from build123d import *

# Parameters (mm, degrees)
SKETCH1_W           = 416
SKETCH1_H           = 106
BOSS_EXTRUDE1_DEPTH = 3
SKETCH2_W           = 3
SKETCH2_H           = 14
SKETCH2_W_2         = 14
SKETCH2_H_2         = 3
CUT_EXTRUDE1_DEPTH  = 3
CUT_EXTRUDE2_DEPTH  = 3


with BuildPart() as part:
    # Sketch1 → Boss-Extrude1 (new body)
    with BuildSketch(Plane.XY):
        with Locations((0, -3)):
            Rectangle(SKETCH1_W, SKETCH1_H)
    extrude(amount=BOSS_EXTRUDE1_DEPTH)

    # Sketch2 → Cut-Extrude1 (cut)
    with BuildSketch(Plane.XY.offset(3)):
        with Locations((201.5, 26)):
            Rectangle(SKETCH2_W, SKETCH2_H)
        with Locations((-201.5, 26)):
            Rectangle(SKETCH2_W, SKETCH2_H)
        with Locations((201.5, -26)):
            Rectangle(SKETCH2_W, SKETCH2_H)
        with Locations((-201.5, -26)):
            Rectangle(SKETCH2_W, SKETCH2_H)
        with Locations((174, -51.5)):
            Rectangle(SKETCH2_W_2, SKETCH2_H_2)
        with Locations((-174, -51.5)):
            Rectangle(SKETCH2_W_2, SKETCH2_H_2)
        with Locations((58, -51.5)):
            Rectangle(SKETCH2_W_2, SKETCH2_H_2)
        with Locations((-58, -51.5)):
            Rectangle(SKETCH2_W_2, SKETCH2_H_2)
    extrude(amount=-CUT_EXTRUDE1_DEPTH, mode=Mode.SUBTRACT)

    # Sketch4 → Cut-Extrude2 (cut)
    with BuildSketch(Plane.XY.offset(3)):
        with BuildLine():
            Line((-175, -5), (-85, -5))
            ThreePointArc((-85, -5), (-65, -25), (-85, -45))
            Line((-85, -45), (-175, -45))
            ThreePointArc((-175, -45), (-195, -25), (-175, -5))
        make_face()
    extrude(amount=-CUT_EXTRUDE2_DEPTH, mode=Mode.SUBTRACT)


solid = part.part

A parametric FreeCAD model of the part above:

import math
import FreeCAD as App
import Part
import Sketcher
from FreeCAD import Vector

doc = App.newDocument("Part")
params = doc.addObject("Spreadsheet::Sheet", "Params")
for row, (alias, value) in enumerate([
    ("sketch1_width", "416 mm"),
    ("sketch1_height", "106 mm"),
    ("pad1_length", "3 mm"),
    ("sketch2_width", "3 mm"),
    ("sketch2_width2", "14 mm"),
    ("pocket1_length", "3 mm"),
    ("sketch3_radius", "20 mm"),
    ("sketch3_width", "90 mm"),
    ("pocket2_length", "3 mm"),
], start=1):
    params.set(f"A{row}", alias)
    params.set(f"B{row}", "=" + value)
    params.setAlias(f"B{row}", alias)

body = doc.addObject("PartDesign::Body", "Body")

# Sketch on XY plane
sketch1 = body.newObject("Sketcher::SketchObject", "Sketch")
sketch1.AttachmentSupport = (doc.getObject("XY_Plane"), [""])
sketch1.MapMode = "FlatFace"
sketch1.addGeometry([
    Part.LineSegment(Vector(-208, 50, 0), Vector(-208, -56, 0)),
    Part.LineSegment(Vector(-208, -56, 0), Vector(208, -56, 0)),
    Part.LineSegment(Vector(208, -56, 0), Vector(208, 50, 0)),
    Part.LineSegment(Vector(208, 50, 0), Vector(-208, 50, 0)),
], False)
sketch1.addConstraint([
    Sketcher.Constraint("Coincident", 0, 2, 1, 1),
    Sketcher.Constraint("Coincident", 1, 2, 2, 1),
    Sketcher.Constraint("Coincident", 2, 2, 3, 1),
    Sketcher.Constraint("Coincident", 3, 2, 0, 1),
    Sketcher.Constraint("Vertical", 0),
    Sketcher.Constraint("Horizontal", 1),
    Sketcher.Constraint("Vertical", 2),
    Sketcher.Constraint("Horizontal", 3),
    Sketcher.Constraint("DistanceX", 1, 1, 1, 2, 416.0),
    Sketcher.Constraint("DistanceY", 0, 2, 0, 1, 106.0),
    Sketcher.Constraint("DistanceX", 0, 2, -1, 1, 208.0),
    Sketcher.Constraint("DistanceY", 0, 2, -1, 1, 56.0),
])
sketch1.setExpression("Constraints[8]", "Params.sketch1_width")
sketch1.setExpression("Constraints[9]", "Params.sketch1_height")
pad1 = body.newObject("PartDesign::Pad", "Pad")
pad1.Profile = sketch1
pad1.setExpression("Length", "Params.pad1_length")

# Sketch on XY plane
sketch2 = body.newObject("Sketcher::SketchObject", "Sketch001")
sketch2.AttachmentSupport = (doc.getObject("XY_Plane"), [""])
sketch2.MapMode = "FlatFace"
sketch2.AttachmentOffset = App.Placement(Vector(0, 0, 3), App.Rotation())
sketch2.addGeometry([
    Part.LineSegment(Vector(200, 33, 0), Vector(200, 19, 0)),  # 0
    Part.LineSegment(Vector(200, 19, 0), Vector(203, 19, 0)),  # 1
    Part.LineSegment(Vector(203, 19, 0), Vector(203, 33, 0)),  # 2
    Part.LineSegment(Vector(203, 33, 0), Vector(200, 33, 0)),  # 3
    Part.LineSegment(Vector(-203, 33, 0), Vector(-203, 19, 0)),  # 4
    Part.LineSegment(Vector(-203, 19, 0), Vector(-200, 19, 0)),  # 5
    Part.LineSegment(Vector(-200, 19, 0), Vector(-200, 33, 0)),  # 6
    Part.LineSegment(Vector(-200, 33, 0), Vector(-203, 33, 0)),  # 7
    Part.LineSegment(Vector(200, -19, 0), Vector(200, -33, 0)),  # 8
    Part.LineSegment(Vector(200, -33, 0), Vector(203, -33, 0)),  # 9
    Part.LineSegment(Vector(203, -33, 0), Vector(203, -19, 0)),  # 10
    Part.LineSegment(Vector(203, -19, 0), Vector(200, -19, 0)),  # 11
    Part.LineSegment(Vector(-203, -19, 0), Vector(-203, -33, 0)),  # 12
    Part.LineSegment(Vector(-203, -33, 0), Vector(-200, -33, 0)),  # 13
    Part.LineSegment(Vector(-200, -33, 0), Vector(-200, -19, 0)),  # 14
    Part.LineSegment(Vector(-200, -19, 0), Vector(-203, -19, 0)),  # 15
    Part.LineSegment(Vector(167, -50, 0), Vector(167, -53, 0)),  # 16
    Part.LineSegment(Vector(167, -53, 0), Vector(181, -53, 0)),  # 17
    Part.LineSegment(Vector(181, -53, 0), Vector(181, -50, 0)),  # 18
    Part.LineSegment(Vector(181, -50, 0), Vector(167, -50, 0)),  # 19
    Part.LineSegment(Vector(-181, -50, 0), Vector(-181, -53, 0)),  # 20
    Part.LineSegment(Vector(-181, -53, 0), Vector(-167, -53, 0)),  # 21
    Part.LineSegment(Vector(-167, -53, 0), Vector(-167, -50, 0)),  # 22
    Part.LineSegment(Vector(-167, -50, 0), Vector(-181, -50, 0)),  # 23
    Part.LineSegment(Vector(51, -50, 0), Vector(51, -53, 0)),  # 24
    Part.LineSegment(Vector(51, -53, 0), Vector(65, -53, 0)),  # 25
    Part.LineSegment(Vector(65, -53, 0), Vector(65, -50, 0)),  # 26
    Part.LineSegment(Vector(65, -50, 0), Vector(51, -50, 0)),  # 27
    Part.LineSegment(Vector(-65, -50, 0), Vector(-65, -53, 0)),  # 28
    Part.LineSegment(Vector(-65, -53, 0), Vector(-51, -53, 0)),  # 29
    Part.LineSegment(Vector(-51, -53, 0), Vector(-51, -50, 0)),  # 30
    Part.LineSegment(Vector(-51, -50, 0), Vector(-65, -50, 0)),  # 31
], False)
sketch2.addConstraint([
    Sketcher.Constraint("Coincident", 0, 2, 1, 1),
    Sketcher.Constraint("Coincident", 1, 2, 2, 1),
    Sketcher.Constraint("Coincident", 2, 2, 3, 1),
    Sketcher.Constraint("Coincident", 3, 2, 0, 1),
    Sketcher.Constraint("Coincident", 4, 2, 5, 1),
    Sketcher.Constraint("Coincident", 5, 2, 6, 1),
    Sketcher.Constraint("Coincident", 6, 2, 7, 1),
    Sketcher.Constraint("Coincident", 7, 2, 4, 1),
    Sketcher.Constraint("Coincident", 8, 2, 9, 1),
    Sketcher.Constraint("Coincident", 9, 2, 10, 1),
    Sketcher.Constraint("Coincident", 10, 2, 11, 1),
    Sketcher.Constraint("Coincident", 11, 2, 8, 1),
    Sketcher.Constraint("Coincident", 12, 2, 13, 1),
    Sketcher.Constraint("Coincident", 13, 2, 14, 1),
    Sketcher.Constraint("Coincident", 14, 2, 15, 1),
    Sketcher.Constraint("Coincident", 15, 2, 12, 1),
    Sketcher.Constraint("Coincident", 16, 2, 17, 1),
    Sketcher.Constraint("Coincident", 17, 2, 18, 1),
    Sketcher.Constraint("Coincident", 18, 2, 19, 1),
    Sketcher.Constraint("Coincident", 19, 2, 16, 1),
    Sketcher.Constraint("Coincident", 20, 2, 21, 1),
    Sketcher.Constraint("Coincident", 21, 2, 22, 1),
    Sketcher.Constraint("Coincident", 22, 2, 23, 1),
    Sketcher.Constraint("Coincident", 23, 2, 20, 1),
    Sketcher.Constraint("Coincident", 24, 2, 25, 1),
    Sketcher.Constraint("Coincident", 25, 2, 26, 1),
    Sketcher.Constraint("Coincident", 26, 2, 27, 1),
    Sketcher.Constraint("Coincident", 27, 2, 24, 1),
    Sketcher.Constraint("Coincident", 28, 2, 29, 1),
    Sketcher.Constraint("Coincident", 29, 2, 30, 1),
    Sketcher.Constraint("Coincident", 30, 2, 31, 1),
    Sketcher.Constraint("Coincident", 31, 2, 28, 1),
    Sketcher.Constraint("Vertical", 0),
    Sketcher.Constraint("Horizontal", 1),
    Sketcher.Constraint("Vertical", 2),
    Sketcher.Constraint("Horizontal", 3),
    Sketcher.Constraint("Vertical", 4),
    Sketcher.Constraint("Horizontal", 5),
    Sketcher.Constraint("Vertical", 6),
    Sketcher.Constraint("Horizontal", 7),
    Sketcher.Constraint("Vertical", 8),
    Sketcher.Constraint("Horizontal", 9),
    Sketcher.Constraint("Vertical", 10),
    Sketcher.Constraint("Horizontal", 11),
    Sketcher.Constraint("Vertical", 12),
    Sketcher.Constraint("Horizontal", 13),
    Sketcher.Constraint("Vertical", 14),
    Sketcher.Constraint("Horizontal", 15),
    Sketcher.Constraint("Vertical", 16),
    Sketcher.Constraint("Horizontal", 17),
    Sketcher.Constraint("Vertical", 18),
    Sketcher.Constraint("Horizontal", 19),
    Sketcher.Constraint("Vertical", 20),
    Sketcher.Constraint("Horizontal", 21),
    Sketcher.Constraint("Vertical", 22),
    Sketcher.Constraint("Horizontal", 23),
    Sketcher.Constraint("Vertical", 24),
    Sketcher.Constraint("Horizontal", 25),
    Sketcher.Constraint("Vertical", 26),
    Sketcher.Constraint("Horizontal", 27),
    Sketcher.Constraint("Vertical", 28),
    Sketcher.Constraint("Horizontal", 29),
    Sketcher.Constraint("Vertical", 30),
    Sketcher.Constraint("Horizontal", 31),
    Sketcher.Constraint("Symmetric", 6, 2, 8, 2, -1, 1),
    Sketcher.Constraint("Symmetric", 4, 2, 10, 2, -1, 1),
    Sketcher.Constraint("Symmetric", 2, 2, 12, 2, -1, 1),
    Sketcher.Constraint("Symmetric", 0, 2, 14, 2, -1, 1),
    Sketcher.Constraint("Symmetric", 1, 2, 4, 2, -2),
    Sketcher.Constraint("Symmetric", 3, 2, 6, 2, -2),
    Sketcher.Constraint("Symmetric", 17, 2, 20, 2, -2),
    Sketcher.Constraint("Symmetric", 19, 2, 22, 2, -2),
    Sketcher.Constraint("Symmetric", 25, 2, 28, 2, -2),
    Sketcher.Constraint("Symmetric", 27, 2, 30, 2, -2),
    Sketcher.Constraint("Horizontal", 21, 2, 24, 2),
    Sketcher.Constraint("Horizontal", 23, 2, 26, 2),
    Sketcher.Constraint("Equal", 23, 25),
    Sketcher.Constraint("Equal", 31, 0),
    Sketcher.Constraint("Equal", 15, 16),
    Sketcher.Constraint("DistanceX", 1, 1, 1, 2, 3.0),
    Sketcher.Constraint("DistanceX", 17, 1, 17, 2, 14.0),
    Sketcher.Constraint("DistanceX", -1, 1, 0, 2, 200.0),
    Sketcher.Constraint("DistanceY", -1, 1, 0, 2, 19.0),
    Sketcher.Constraint("DistanceX", -1, 1, 16, 2, 167.0),
    Sketcher.Constraint("DistanceY", 16, 2, -1, 1, 53.0),
    Sketcher.Constraint("DistanceX", -1, 1, 24, 2, 51.0),
])
sketch2.setExpression("Constraints[79]", "Params.sketch2_width")
sketch2.setExpression("Constraints[80]", "Params.sketch2_width2")
pocket1 = body.newObject("PartDesign::Pocket", "Pocket")
pocket1.Profile = sketch2
pocket1.setExpression("Length", "Params.pocket1_length")

# Sketch on XY plane
sketch3 = body.newObject("Sketcher::SketchObject", "Sketch002")
sketch3.AttachmentSupport = (doc.getObject("XY_Plane"), [""])
sketch3.MapMode = "FlatFace"
sketch3.AttachmentOffset = App.Placement(Vector(0, 0, 3), App.Rotation())
sketch3.addGeometry([
    Part.LineSegment(Vector(-85, -5, 0), Vector(-175, -5, 0)),
    Part.ArcOfCircle(Part.Circle(Vector(-175, -25, 0), Vector(0, 0, 1), 20), math.radians(90), math.radians(270)),
    Part.LineSegment(Vector(-175, -45, 0), Vector(-85, -45, 0)),
    Part.ArcOfCircle(Part.Circle(Vector(-85, -25, 0), Vector(0, 0, 1), 20), math.radians(-90), math.radians(90)),
], False)
sketch3.addConstraint([
    Sketcher.Constraint("Tangent", 0, 2, 1, 1),
    Sketcher.Constraint("Tangent", 1, 2, 2, 1),
    Sketcher.Constraint("Tangent", 2, 2, 3, 1),
    Sketcher.Constraint("Tangent", 3, 2, 0, 1),
    Sketcher.Constraint("Horizontal", 0),
    Sketcher.Constraint("Horizontal", 2),
    Sketcher.Constraint("Radius", 1, 20.0),
    Sketcher.Constraint("DistanceX", 0, 2, 0, 1, 90.0),
    Sketcher.Constraint("DistanceX", 1, 3, -1, 1, 175.0),
    Sketcher.Constraint("DistanceY", 1, 3, -1, 1, 25.0),
])
sketch3.setExpression("Constraints[6]", "Params.sketch3_radius")
sketch3.setExpression("Constraints[7]", "Params.sketch3_width")
pocket2 = body.newObject("PartDesign::Pocket", "Pocket001")
pocket2.Profile = sketch3
pocket2.setExpression("Length", "Params.pocket2_length")

doc.recompute()
